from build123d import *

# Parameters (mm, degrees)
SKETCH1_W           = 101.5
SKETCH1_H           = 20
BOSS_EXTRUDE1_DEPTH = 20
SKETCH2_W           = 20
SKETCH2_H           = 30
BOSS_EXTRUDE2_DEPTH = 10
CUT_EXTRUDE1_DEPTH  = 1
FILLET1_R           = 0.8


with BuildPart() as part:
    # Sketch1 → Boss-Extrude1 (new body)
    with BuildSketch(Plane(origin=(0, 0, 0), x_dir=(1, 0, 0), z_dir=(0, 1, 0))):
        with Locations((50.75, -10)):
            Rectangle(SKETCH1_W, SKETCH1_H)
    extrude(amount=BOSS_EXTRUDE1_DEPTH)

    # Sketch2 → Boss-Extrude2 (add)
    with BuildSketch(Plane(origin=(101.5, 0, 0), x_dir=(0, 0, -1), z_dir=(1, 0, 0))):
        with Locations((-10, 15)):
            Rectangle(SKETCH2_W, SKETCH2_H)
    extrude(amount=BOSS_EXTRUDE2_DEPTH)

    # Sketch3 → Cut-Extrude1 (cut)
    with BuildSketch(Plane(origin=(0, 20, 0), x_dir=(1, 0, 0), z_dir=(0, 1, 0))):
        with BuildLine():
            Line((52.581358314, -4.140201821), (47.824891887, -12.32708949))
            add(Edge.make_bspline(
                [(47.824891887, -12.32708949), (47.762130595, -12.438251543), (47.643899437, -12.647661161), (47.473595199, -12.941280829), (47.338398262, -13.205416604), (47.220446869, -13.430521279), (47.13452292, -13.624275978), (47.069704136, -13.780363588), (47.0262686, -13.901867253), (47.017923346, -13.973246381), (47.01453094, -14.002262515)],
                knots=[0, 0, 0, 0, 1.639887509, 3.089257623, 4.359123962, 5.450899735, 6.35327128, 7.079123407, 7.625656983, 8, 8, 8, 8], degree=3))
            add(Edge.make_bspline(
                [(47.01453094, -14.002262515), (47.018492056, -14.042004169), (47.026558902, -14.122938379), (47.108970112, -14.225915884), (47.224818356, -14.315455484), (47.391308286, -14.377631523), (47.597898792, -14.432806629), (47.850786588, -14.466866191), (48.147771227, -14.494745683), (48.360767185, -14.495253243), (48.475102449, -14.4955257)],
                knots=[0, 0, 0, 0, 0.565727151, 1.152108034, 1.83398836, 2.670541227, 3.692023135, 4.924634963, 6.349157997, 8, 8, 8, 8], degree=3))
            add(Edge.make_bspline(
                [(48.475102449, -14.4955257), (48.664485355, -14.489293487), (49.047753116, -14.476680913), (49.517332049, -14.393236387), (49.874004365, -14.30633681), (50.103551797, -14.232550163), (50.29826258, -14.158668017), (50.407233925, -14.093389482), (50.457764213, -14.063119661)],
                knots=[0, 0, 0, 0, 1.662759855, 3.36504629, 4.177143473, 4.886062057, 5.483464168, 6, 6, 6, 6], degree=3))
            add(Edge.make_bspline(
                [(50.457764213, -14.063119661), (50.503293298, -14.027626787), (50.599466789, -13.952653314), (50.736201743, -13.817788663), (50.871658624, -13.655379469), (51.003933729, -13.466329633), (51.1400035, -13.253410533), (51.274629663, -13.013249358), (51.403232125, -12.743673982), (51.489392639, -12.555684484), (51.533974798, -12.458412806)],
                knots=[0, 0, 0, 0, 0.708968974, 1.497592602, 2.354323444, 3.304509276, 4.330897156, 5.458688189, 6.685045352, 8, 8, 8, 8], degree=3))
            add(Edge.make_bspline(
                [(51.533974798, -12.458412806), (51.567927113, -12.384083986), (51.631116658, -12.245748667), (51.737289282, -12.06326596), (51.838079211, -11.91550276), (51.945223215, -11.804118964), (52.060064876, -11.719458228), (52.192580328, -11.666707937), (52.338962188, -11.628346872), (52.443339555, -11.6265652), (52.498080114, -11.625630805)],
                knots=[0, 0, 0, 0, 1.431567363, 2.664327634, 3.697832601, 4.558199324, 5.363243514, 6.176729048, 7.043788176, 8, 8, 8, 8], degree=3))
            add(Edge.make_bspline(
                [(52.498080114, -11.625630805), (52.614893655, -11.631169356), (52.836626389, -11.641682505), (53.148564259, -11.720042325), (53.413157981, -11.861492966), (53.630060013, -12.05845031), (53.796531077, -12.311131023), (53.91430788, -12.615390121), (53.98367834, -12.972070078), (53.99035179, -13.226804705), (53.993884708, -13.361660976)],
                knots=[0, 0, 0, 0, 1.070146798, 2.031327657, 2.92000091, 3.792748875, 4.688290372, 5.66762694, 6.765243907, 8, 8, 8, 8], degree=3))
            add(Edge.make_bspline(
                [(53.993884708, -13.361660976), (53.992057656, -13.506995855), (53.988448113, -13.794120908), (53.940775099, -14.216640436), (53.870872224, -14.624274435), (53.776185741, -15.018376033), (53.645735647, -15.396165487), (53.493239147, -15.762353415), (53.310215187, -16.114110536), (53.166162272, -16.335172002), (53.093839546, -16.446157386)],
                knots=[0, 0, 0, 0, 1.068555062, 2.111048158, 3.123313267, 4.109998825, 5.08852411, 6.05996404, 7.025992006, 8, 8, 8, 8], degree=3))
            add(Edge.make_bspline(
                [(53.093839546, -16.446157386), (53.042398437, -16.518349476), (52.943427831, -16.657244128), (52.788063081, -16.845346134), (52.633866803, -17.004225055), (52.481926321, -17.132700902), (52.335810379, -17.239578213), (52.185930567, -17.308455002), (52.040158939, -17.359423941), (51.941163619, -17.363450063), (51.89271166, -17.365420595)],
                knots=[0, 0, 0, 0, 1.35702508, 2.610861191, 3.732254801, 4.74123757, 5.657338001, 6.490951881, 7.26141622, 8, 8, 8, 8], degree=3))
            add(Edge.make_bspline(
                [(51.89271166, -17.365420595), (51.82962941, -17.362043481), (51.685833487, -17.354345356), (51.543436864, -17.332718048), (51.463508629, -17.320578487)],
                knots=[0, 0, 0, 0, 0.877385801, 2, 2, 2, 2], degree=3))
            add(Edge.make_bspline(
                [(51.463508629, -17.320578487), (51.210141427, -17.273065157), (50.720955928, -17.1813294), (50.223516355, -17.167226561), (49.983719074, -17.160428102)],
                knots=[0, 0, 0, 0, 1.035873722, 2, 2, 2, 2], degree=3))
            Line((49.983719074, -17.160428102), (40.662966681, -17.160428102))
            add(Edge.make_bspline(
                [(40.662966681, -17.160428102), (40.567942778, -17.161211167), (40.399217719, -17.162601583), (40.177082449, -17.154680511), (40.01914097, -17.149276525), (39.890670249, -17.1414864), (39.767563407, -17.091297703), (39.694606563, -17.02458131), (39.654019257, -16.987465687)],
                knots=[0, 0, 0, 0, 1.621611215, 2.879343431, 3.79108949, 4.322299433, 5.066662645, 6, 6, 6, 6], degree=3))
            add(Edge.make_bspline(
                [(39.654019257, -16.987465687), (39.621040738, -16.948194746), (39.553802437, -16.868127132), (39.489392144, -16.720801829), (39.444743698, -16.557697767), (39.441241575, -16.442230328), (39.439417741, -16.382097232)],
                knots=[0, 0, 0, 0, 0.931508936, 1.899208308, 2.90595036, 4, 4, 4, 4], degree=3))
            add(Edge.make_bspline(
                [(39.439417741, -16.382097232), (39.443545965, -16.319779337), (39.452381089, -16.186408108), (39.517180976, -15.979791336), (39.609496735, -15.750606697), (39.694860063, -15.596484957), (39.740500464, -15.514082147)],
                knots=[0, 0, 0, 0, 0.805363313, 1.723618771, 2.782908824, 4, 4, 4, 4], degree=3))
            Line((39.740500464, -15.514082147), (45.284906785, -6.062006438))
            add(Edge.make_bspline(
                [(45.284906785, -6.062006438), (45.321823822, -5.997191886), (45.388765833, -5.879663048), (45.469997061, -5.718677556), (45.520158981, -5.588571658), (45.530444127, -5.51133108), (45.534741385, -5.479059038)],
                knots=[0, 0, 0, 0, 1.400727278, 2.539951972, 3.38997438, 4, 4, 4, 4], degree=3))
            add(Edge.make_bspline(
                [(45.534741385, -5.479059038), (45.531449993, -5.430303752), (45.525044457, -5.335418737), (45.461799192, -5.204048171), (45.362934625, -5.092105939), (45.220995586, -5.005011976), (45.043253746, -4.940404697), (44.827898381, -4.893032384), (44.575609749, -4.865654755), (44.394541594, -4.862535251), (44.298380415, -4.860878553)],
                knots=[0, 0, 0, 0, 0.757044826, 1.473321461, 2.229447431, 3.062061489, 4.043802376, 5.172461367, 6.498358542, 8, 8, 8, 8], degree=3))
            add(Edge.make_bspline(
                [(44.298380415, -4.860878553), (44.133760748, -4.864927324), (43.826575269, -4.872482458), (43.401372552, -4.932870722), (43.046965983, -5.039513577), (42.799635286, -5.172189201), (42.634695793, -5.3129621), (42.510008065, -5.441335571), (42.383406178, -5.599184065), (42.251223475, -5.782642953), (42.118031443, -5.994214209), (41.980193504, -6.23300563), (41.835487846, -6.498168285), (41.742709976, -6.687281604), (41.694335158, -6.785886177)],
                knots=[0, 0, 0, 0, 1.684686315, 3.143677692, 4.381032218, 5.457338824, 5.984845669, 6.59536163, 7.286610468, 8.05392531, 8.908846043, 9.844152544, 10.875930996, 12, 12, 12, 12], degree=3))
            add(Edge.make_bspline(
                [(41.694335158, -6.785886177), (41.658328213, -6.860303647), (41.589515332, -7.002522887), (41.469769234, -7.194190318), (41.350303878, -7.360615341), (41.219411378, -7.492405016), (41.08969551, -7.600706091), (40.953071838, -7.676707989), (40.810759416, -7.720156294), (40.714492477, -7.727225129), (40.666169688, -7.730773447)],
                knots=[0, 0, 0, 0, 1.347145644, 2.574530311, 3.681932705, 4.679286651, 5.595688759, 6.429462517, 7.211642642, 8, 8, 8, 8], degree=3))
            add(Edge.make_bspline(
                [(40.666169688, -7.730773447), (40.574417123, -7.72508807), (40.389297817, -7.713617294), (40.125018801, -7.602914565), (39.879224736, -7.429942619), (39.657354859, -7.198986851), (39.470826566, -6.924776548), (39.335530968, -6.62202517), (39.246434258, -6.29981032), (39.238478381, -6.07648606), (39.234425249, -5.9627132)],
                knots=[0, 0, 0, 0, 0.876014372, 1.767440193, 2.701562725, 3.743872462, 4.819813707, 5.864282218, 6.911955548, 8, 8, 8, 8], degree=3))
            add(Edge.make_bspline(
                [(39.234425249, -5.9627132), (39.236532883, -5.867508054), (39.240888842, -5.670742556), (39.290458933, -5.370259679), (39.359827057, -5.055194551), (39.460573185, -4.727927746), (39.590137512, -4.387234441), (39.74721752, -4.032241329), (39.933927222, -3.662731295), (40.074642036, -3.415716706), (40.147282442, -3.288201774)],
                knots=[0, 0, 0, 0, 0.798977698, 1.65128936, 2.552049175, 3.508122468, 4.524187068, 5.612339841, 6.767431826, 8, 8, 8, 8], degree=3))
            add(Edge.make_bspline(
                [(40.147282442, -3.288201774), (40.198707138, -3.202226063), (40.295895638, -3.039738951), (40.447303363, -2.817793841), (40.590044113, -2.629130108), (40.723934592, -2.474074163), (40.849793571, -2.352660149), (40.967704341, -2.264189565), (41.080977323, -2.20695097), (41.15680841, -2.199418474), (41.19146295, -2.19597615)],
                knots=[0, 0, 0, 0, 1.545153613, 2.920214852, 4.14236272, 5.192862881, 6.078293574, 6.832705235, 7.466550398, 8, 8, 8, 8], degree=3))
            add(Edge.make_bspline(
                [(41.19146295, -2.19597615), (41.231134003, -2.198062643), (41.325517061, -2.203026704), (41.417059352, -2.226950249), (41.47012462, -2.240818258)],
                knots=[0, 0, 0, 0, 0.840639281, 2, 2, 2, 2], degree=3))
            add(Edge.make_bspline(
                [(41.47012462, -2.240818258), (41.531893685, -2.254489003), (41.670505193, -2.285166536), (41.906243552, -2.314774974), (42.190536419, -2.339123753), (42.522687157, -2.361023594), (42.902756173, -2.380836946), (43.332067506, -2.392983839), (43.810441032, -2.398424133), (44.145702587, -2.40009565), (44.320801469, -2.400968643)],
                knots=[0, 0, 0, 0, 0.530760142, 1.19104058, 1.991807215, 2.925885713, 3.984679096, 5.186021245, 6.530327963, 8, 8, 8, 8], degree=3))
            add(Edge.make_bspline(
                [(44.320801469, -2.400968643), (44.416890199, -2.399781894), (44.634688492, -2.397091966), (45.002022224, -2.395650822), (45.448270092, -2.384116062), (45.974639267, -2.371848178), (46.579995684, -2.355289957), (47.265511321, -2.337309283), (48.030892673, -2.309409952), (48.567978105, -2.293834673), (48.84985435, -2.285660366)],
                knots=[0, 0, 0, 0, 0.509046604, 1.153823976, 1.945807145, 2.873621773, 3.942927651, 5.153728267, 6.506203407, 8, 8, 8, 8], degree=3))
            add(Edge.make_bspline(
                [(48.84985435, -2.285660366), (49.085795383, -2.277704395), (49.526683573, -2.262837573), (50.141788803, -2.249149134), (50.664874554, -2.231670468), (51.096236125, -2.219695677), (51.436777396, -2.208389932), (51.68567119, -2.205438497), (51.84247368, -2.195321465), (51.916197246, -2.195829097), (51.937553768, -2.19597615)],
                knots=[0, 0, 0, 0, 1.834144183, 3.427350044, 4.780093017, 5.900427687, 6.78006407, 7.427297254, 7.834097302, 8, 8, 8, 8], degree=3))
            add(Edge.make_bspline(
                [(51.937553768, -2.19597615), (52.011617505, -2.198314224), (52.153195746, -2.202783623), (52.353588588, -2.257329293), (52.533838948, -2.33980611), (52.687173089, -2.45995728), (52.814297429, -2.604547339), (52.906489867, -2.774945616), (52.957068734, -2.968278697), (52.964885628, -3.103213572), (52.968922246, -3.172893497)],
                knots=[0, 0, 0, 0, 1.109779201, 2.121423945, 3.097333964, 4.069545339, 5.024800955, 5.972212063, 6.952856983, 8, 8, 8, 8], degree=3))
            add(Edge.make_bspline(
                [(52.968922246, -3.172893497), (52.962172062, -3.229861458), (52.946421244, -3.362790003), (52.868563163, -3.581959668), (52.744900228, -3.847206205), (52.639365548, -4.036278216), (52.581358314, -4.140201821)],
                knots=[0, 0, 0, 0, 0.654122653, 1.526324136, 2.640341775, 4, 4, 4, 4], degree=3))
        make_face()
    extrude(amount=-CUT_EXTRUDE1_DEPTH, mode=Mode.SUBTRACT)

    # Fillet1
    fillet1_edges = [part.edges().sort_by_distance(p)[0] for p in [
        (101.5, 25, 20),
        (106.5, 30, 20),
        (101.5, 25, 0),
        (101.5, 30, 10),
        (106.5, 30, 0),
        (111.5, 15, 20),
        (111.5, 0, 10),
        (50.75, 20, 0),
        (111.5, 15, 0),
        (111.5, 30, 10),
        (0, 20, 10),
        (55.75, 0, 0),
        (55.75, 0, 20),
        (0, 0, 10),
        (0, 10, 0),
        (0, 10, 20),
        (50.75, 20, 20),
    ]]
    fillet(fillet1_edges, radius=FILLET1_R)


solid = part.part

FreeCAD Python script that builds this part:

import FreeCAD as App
import Part
import Sketcher

V = App.Vector
Q = App.Units.Quantity


def edges_at(feature, points):
    """Names of the edges that pass closest to the given points."""
    edges = feature.Shape.Edges
    near = lambda p: min(range(len(edges)), key=lambda i: edges[i].distToShape(Part.Vertex(*p))[0])
    return sorted({f"Edge{near(p) + 1}" for p in points})

doc = App.newDocument("Part")
body = doc.addObject("PartDesign::Body", "Body")

# Sketch on XZ plane
sketch1 = body.newObject("Sketcher::SketchObject", "Sketch")
sketch1.AttachmentSupport = (doc.getObject("XZ_Plane"), [""])
sketch1.MapMode = "FlatFace"
sketch1.addGeometry([
    Part.LineSegment(V(0, 0, 0), V(0, 20, 0)),
    Part.LineSegment(V(0, 20, 0), V(101.5, 20, 0)),
    Part.LineSegment(V(101.5, 20, 0), V(101.5, 0, 0)),
    Part.LineSegment(V(101.5, 0, 0), V(0, 0, 0)),
], False)
sketch1.addConstraint([
    Sketcher.Constraint("Coincident", 0, 2, 1, 1),
    Sketcher.Constraint("Coincident", 1, 2, 2, 1),
    Sketcher.Constraint("Coincident", 2, 2, 3, 1),
    Sketcher.Constraint("Coincident", 3, 2, 0, 1),
    Sketcher.Constraint("Vertical", 0),
    Sketcher.Constraint("Horizontal", 1),
    Sketcher.Constraint("Vertical", 2),
    Sketcher.Constraint("Horizontal", 3),
    Sketcher.Constraint("Coincident", 3, 2, -1, 1),
    Sketcher.Constraint("DistanceY", 0, 1, 0, 2, Q("20 mm")),
    Sketcher.Constraint("DistanceX", 1, 1, 1, 2, Q("101.5 mm")),
])
pad1 = body.newObject("PartDesign::Pad", "Pad")
pad1.Profile = sketch1
pad1.Length = 20
pad1.Reversed = True

# Sketch on YZ plane
sketch2 = body.newObject("Sketcher::SketchObject", "Sketch001")
sketch2.AttachmentSupport = (doc.getObject("YZ_Plane"), [""])
sketch2.MapMode = "FlatFace"
sketch2.AttachmentOffset = App.Placement(V(0, 0, 101.5), App.Rotation())
sketch2.addGeometry([
    Part.LineSegment(V(30, 20, 0), V(0, 20, 0)),
    Part.LineSegment(V(0, 20, 0), V(0, 0, 0)),
    Part.LineSegment(V(0, 0, 0), V(30, 0, 0)),
    Part.LineSegment(V(30, 0, 0), V(30, 20, 0)),
], False)
sketch2.addConstraint([
    Sketcher.Constraint("Coincident", 0, 2, 1, 1),
    Sketcher.Constraint("Coincident", 1, 2, 2, 1),
    Sketcher.Constraint("Coincident", 2, 2, 3, 1),
    Sketcher.Constraint("Coincident", 3, 2, 0, 1),
    Sketcher.Constraint("Horizontal", 0),
    Sketcher.Constraint("Vertical", 1),
    Sketcher.Constraint("Horizontal", 2),
    Sketcher.Constraint("Vertical", 3),
    Sketcher.Constraint("Coincident", 1, 2, -1, 1),
    Sketcher.Constraint("DistanceX", 0, 2, 0, 1, Q("30 mm")),
    Sketcher.Constraint("DistanceY", 1, 2, 1, 1, Q("20 mm")),
])
pad2 = body.newObject("PartDesign::Pad", "Pad001")
pad2.Profile = sketch2
pad2.Length = 10

# Sketch on XZ plane
sketch3 = body.newObject("Sketcher::SketchObject", "Sketch002")
sketch3.AttachmentSupport = (doc.getObject("XZ_Plane"), [""])
sketch3.MapMode = "FlatFace"
sketch3.AttachmentOffset = App.Placement(V(0, 0, -20), App.Rotation())
sketch3.addGeometry([
    Part.LineSegment(V(47.824892, 12.327089, 0), V(52.581358, 4.140202, 0)),  # 0
    Part.BSplineCurve([V(52.968922, 3.172893, 0), V(52.962172, 3.229861, 0), V(52.946421, 3.36279, 0), V(52.868563, 3.58196, 0), V(52.7449, 3.847206, 0), V(52.639366, 4.036278, 0), V(52.581358, 4.140202, 0)], [4, 1, 1, 1, 4], [0, 0.654122653, 1.526324136, 2.640341775, 4], False, 3, [1, 1, 1, 1, 1, 1, 1], False),  # 1
    Part.BSplineCurve([V(51.937554, 2.195976, 0), V(52.011618, 2.198314, 0), V(52.153196, 2.202784, 0), V(52.353589, 2.257329, 0), V(52.533839, 2.339806, 0), V(52.687173, 2.459957, 0), V(52.814297, 2.604547, 0), V(52.90649, 2.774946, 0), V(52.957069, 2.968279, 0), V(52.964886, 3.103214, 0), V(52.968922, 3.172893, 0)], [4, 1, 1, 1, 1, 1, 1, 1, 4], [0, 1.109779201, 2.121423945, 3.097333964, 4.069545339, 5.024800955, 5.972212063, 6.952856983, 8], False, 3, [1, 1, 1, 1, 1, 1, 1, 1, 1, 1, 1], False),  # 2
    Part.BSplineCurve([V(48.849854, 2.28566, 0), V(49.085795, 2.277704, 0), V(49.526684, 2.262838, 0), V(50.141789, 2.249149, 0), V(50.664875, 2.23167, 0), V(51.096236, 2.219696, 0), V(51.436777, 2.20839, 0), V(51.685671, 2.205438, 0), V(51.842474, 2.195321, 0), V(51.916197, 2.195829, 0), V(51.937554, 2.195976, 0)], [4, 1, 1, 1, 1, 1, 1, 1, 4], [0, 1.834144183, 3.427350044, 4.780093017, 5.900427687, 6.78006407, 7.427297254, 7.834097302, 8], False, 3, [1, 1, 1, 1, 1, 1, 1, 1, 1, 1, 1], False),  # 3
    Part.BSplineCurve([V(44.320801, 2.400969, 0), V(44.41689, 2.399782, 0), V(44.634688, 2.397092, 0), V(45.002022, 2.395651, 0), V(45.44827, 2.384116, 0), V(45.974639, 2.371848, 0), V(46.579996, 2.35529, 0), V(47.265511, 2.337309, 0), V(48.030893, 2.30941, 0), V(48.567978, 2.293835, 0), V(48.849854, 2.28566, 0)], [4, 1, 1, 1, 1, 1, 1, 1, 4], [0, 0.509046604, 1.153823976, 1.945807145, 2.873621773, 3.942927651, 5.153728267, 6.506203407, 8], False, 3, [1, 1, 1, 1, 1, 1, 1, 1, 1, 1, 1], False),  # 4
    Part.BSplineCurve([V(41.470125, 2.240818, 0), V(41.531894, 2.254489, 0), V(41.670505, 2.285167, 0), V(41.906244, 2.314775, 0), V(42.190536, 2.339124, 0), V(42.522687, 2.361024, 0), V(42.902756, 2.380837, 0), V(43.332068, 2.392984, 0), V(43.810441, 2.398424, 0), V(44.145703, 2.400096, 0), V(44.320801, 2.400969, 0)], [4, 1, 1, 1, 1, 1, 1, 1, 4], [0, 0.530760142, 1.19104058, 1.991807215, 2.925885713, 3.984679096, 5.186021245, 6.530327963, 8], False, 3, [1, 1, 1, 1, 1, 1, 1, 1, 1, 1, 1], False),  # 5
    Part.BSplineCurve([V(41.191463, 2.195976, 0), V(41.231134, 2.198063, 0), V(41.325517, 2.203027, 0), V(41.417059, 2.22695, 0), V(41.470125, 2.240818, 0)], [4, 1, 4], [0, 0.840639281, 2], False, 3, [1, 1, 1, 1, 1], False),  # 6
    Part.BSplineCurve([V(40.147282, 3.288202, 0), V(40.198707, 3.202226, 0), V(40.295896, 3.039739, 0), V(40.447303, 2.817794, 0), V(40.590044, 2.62913, 0), V(40.723935, 2.474074, 0), V(40.849794, 2.35266, 0), V(40.967704, 2.26419, 0), V(41.080977, 2.206951, 0), V(41.156808, 2.199418, 0), V(41.191463, 2.195976, 0)], [4, 1, 1, 1, 1, 1, 1, 1, 4], [0, 1.545153613, 2.920214852, 4.14236272, 5.192862881, 6.078293574, 6.832705235, 7.466550398, 8], False, 3, [1, 1, 1, 1, 1, 1, 1, 1, 1, 1, 1], False),  # 7
    Part.BSplineCurve([V(39.234425, 5.962713, 0), V(39.236533, 5.867508, 0), V(39.240889, 5.670743, 0), V(39.290459, 5.37026, 0), V(39.359827, 5.055195, 0), V(39.460573, 4.727928, 0), V(39.590138, 4.387234, 0), V(39.747218, 4.032241, 0), V(39.933927, 3.662731, 0), V(40.074642, 3.415717, 0), V(40.147282, 3.288202, 0)], [4, 1, 1, 1, 1, 1, 1, 1, 4], [0, 0.798977698, 1.65128936, 2.552049175, 3.508122468, 4.524187068, 5.612339841, 6.767431826, 8], False, 3, [1, 1, 1, 1, 1, 1, 1, 1, 1, 1, 1], False),  # 8
    Part.BSplineCurve([V(40.66617, 7.730773, 0), V(40.574417, 7.725088, 0), V(40.389298, 7.713617, 0), V(40.125019, 7.602915, 0), V(39.879225, 7.429943, 0), V(39.657355, 7.198987, 0), V(39.470827, 6.924777, 0), V(39.335531, 6.622025, 0), V(39.246434, 6.29981, 0), V(39.238478, 6.076486, 0), V(39.234425, 5.962713, 0)], [4, 1, 1, 1, 1, 1, 1, 1, 4], [0, 0.876014372, 1.767440193, 2.701562725, 3.743872462, 4.819813707, 5.864282218, 6.911955548, 8], False, 3, [1, 1, 1, 1, 1, 1, 1, 1, 1, 1, 1], False),  # 9
    Part.BSplineCurve([V(41.694335, 6.785886, 0), V(41.658328, 6.860304, 0), V(41.589515, 7.002523, 0), V(41.469769, 7.19419, 0), V(41.350304, 7.360615, 0), V(41.219411, 7.492405, 0), V(41.089696, 7.600706, 0), V(40.953072, 7.676708, 0), V(40.810759, 7.720156, 0), V(40.714492, 7.727225, 0), V(40.66617, 7.730773, 0)], [4, 1, 1, 1, 1, 1, 1, 1, 4], [0, 1.347145644, 2.574530311, 3.681932705, 4.679286651, 5.595688759, 6.429462517, 7.211642642, 8], False, 3, [1, 1, 1, 1, 1, 1, 1, 1, 1, 1, 1], False),  # 10
    Part.BSplineCurve([V(44.29838, 4.860879, 0), V(44.133761, 4.864927, 0), V(43.826575, 4.872482, 0), V(43.401373, 4.932871, 0), V(43.046966, 5.039514, 0), V(42.799635, 5.172189, 0), V(42.634696, 5.312962, 0), V(42.510008, 5.441336, 0), V(42.383406, 5.599184, 0), V(42.251223, 5.782643, 0), V(42.118031, 5.994214, 0), V(41.980194, 6.233006, 0), V(41.835488, 6.498168, 0), V(41.74271, 6.687282, 0), V(41.694335, 6.785886, 0)], [4, 1, 1, 1, 1, 1, 1, 1, 1, 1, 1, 1, 4], [0, 1.684686315, 3.143677692, 4.381032218, 5.457338824, 5.984845669, 6.59536163, 7.286610468, 8.05392531, 8.908846043, 9.844152544, 10.875930996, 12], False, 3, [1, 1, 1, 1, 1, 1, 1, 1, 1, 1, 1, 1, 1, 1, 1], False),  # 11
    Part.BSplineCurve([V(45.534741, 5.479059, 0), V(45.53145, 5.430304, 0), V(45.525044, 5.335419, 0), V(45.461799, 5.204048, 0), V(45.362935, 5.092106, 0), V(45.220996, 5.005012, 0), V(45.043254, 4.940405, 0), V(44.827898, 4.893032, 0), V(44.57561, 4.865655, 0), V(44.394542, 4.862535, 0), V(44.29838, 4.860879, 0)], [4, 1, 1, 1, 1, 1, 1, 1, 4], [0, 0.757044826, 1.473321461, 2.229447431, 3.062061489, 4.043802376, 5.172461367, 6.498358542, 8], False, 3, [1, 1, 1, 1, 1, 1, 1, 1, 1, 1, 1], False),  # 12
    Part.BSplineCurve([V(45.284907, 6.062006, 0), V(45.321824, 5.997192, 0), V(45.388766, 5.879663, 0), V(45.469997, 5.718678, 0), V(45.520159, 5.588572, 0), V(45.530444, 5.511331, 0), V(45.534741, 5.479059, 0)], [4, 1, 1, 1, 4], [0, 1.400727278, 2.539951972, 3.38997438, 4], False, 3, [1, 1, 1, 1, 1, 1, 1], False),  # 13
    Part.LineSegment(V(45.284907, 6.062006, 0), V(39.7405, 15.514082, 0)),  # 14
    Part.BSplineCurve([V(39.439418, 16.382097, 0), V(39.443546, 16.319779, 0), V(39.452381, 16.186408, 0), V(39.517181, 15.979791, 0), V(39.609497, 15.750607, 0), V(39.69486, 15.596485, 0), V(39.7405, 15.514082, 0)], [4, 1, 1, 1, 4], [0, 0.805363313, 1.723618771, 2.782908824, 4], False, 3, [1, 1, 1, 1, 1, 1, 1], False),  # 15
    Part.BSplineCurve([V(39.654019, 16.987466, 0), V(39.621041, 16.948195, 0), V(39.553802, 16.868127, 0), V(39.489392, 16.720802, 0), V(39.444744, 16.557698, 0), V(39.441242, 16.44223, 0), V(39.439418, 16.382097, 0)], [4, 1, 1, 1, 4], [0, 0.931508936, 1.899208308, 2.90595036, 4], False, 3, [1, 1, 1, 1, 1, 1, 1], False),  # 16
    Part.BSplineCurve([V(40.662967, 17.160428, 0), V(40.567943, 17.161211, 0), V(40.399218, 17.162602, 0), V(40.177082, 17.154681, 0), V(40.019141, 17.149277, 0), V(39.89067, 17.141486, 0), V(39.767563, 17.091298, 0), V(39.694607, 17.024581, 0), V(39.654019, 16.987466, 0)], [4, 1, 1, 1, 1, 1, 4], [0, 1.621611215, 2.879343431, 3.79108949, 4.322299433, 5.066662645, 6], False, 3, [1, 1, 1, 1, 1, 1, 1, 1, 1], False),  # 17
    Part.LineSegment(V(40.662967, 17.160428, 0), V(49.983719, 17.160428, 0)),  # 18
    Part.BSplineCurve([V(51.463509, 17.320578, 0), V(51.210141, 17.273065, 0), V(50.720956, 17.181329, 0), V(50.223516, 17.167227, 0), V(49.983719, 17.160428, 0)], [4, 1, 4], [0, 1.035873722, 2], False, 3, [1, 1, 1, 1, 1], False),  # 19
    Part.BSplineCurve([V(51.892712, 17.365421, 0), V(51.829629, 17.362043, 0), V(51.685833, 17.354345, 0), V(51.543437, 17.332718, 0), V(51.463509, 17.320578, 0)], [4, 1, 4], [0, 0.877385801, 2], False, 3, [1, 1, 1, 1, 1], False),  # 20
    Part.BSplineCurve([V(53.09384, 16.446157, 0), V(53.042398, 16.518349, 0), V(52.943428, 16.657244, 0), V(52.788063, 16.845346, 0), V(52.633867, 17.004225, 0), V(52.481926, 17.132701, 0), V(52.33581, 17.239578, 0), V(52.185931, 17.308455, 0), V(52.040159, 17.359424, 0), V(51.941164, 17.36345, 0), V(51.892712, 17.365421, 0)], [4, 1, 1, 1, 1, 1, 1, 1, 4], [0, 1.35702508, 2.610861191, 3.732254801, 4.74123757, 5.657338001, 6.490951881, 7.26141622, 8], False, 3, [1, 1, 1, 1, 1, 1, 1, 1, 1, 1, 1], False),  # 21
    Part.BSplineCurve([V(53.993885, 13.361661, 0), V(53.992058, 13.506996, 0), V(53.988448, 13.794121, 0), V(53.940775, 14.21664, 0), V(53.870872, 14.624274, 0), V(53.776186, 15.018376, 0), V(53.645736, 15.396165, 0), V(53.493239, 15.762353, 0), V(53.310215, 16.114111, 0), V(53.166162, 16.335172, 0), V(53.09384, 16.446157, 0)], [4, 1, 1, 1, 1, 1, 1, 1, 4], [0, 1.068555062, 2.111048158, 3.123313267, 4.109998825, 5.08852411, 6.05996404, 7.025992006, 8], False, 3, [1, 1, 1, 1, 1, 1, 1, 1, 1, 1, 1], False),  # 22
    Part.BSplineCurve([V(52.49808, 11.625631, 0), V(52.614894, 11.631169, 0), V(52.836626, 11.641683, 0), V(53.148564, 11.720042, 0), V(53.413158, 11.861493, 0), V(53.63006, 12.05845, 0), V(53.796531, 12.311131, 0), V(53.914308, 12.61539, 0), V(53.983678, 12.97207, 0), V(53.990352, 13.226805, 0), V(53.993885, 13.361661, 0)], [4, 1, 1, 1, 1, 1, 1, 1, 4], [0, 1.070146798, 2.031327657, 2.92000091, 3.792748875, 4.688290372, 5.66762694, 6.765243907, 8], False, 3, [1, 1, 1, 1, 1, 1, 1, 1, 1, 1, 1], False),  # 23
    Part.BSplineCurve([V(51.533975, 12.458413, 0), V(51.567927, 12.384084, 0), V(51.631117, 12.245749, 0), V(51.737289, 12.063266, 0), V(51.838079, 11.915503, 0), V(51.945223, 11.804119, 0), V(52.060065, 11.719458, 0), V(52.19258, 11.666708, 0), V(52.338962, 11.628347, 0), V(52.44334, 11.626565, 0), V(52.49808, 11.625631, 0)], [4, 1, 1, 1, 1, 1, 1, 1, 4], [0, 1.431567363, 2.664327634, 3.697832601, 4.558199324, 5.363243514, 6.176729048, 7.043788176, 8], False, 3, [1, 1, 1, 1, 1, 1, 1, 1, 1, 1, 1], False),  # 24
    Part.BSplineCurve([V(50.457764, 14.06312, 0), V(50.503293, 14.027627, 0), V(50.599467, 13.952653, 0), V(50.736202, 13.817789, 0), V(50.871659, 13.655379, 0), V(51.003934, 13.46633, 0), V(51.140003, 13.253411, 0), V(51.27463, 13.013249, 0), V(51.403232, 12.743674, 0), V(51.489393, 12.555684, 0), V(51.533975, 12.458413, 0)], [4, 1, 1, 1, 1, 1, 1, 1, 4], [0, 0.708968974, 1.497592602, 2.354323444, 3.304509276, 4.330897156, 5.458688189, 6.685045352, 8], False, 3, [1, 1, 1, 1, 1, 1, 1, 1, 1, 1, 1], False),  # 25
    Part.BSplineCurve([V(48.475102, 14.495526, 0), V(48.664485, 14.489293, 0), V(49.047753, 14.476681, 0), V(49.517332, 14.393236, 0), V(49.874004, 14.306337, 0), V(50.103552, 14.23255, 0), V(50.298263, 14.158668, 0), V(50.407234, 14.093389, 0), V(50.457764, 14.06312, 0)], [4, 1, 1, 1, 1, 1, 4], [0, 1.662759855, 3.36504629, 4.177143473, 4.886062057, 5.483464168, 6], False, 3, [1, 1, 1, 1, 1, 1, 1, 1, 1], False),  # 26
    Part.BSplineCurve([V(47.014531, 14.002263, 0), V(47.018492, 14.042004, 0), V(47.026559, 14.122938, 0), V(47.10897, 14.225916, 0), V(47.224818, 14.315455, 0), V(47.391308, 14.377632, 0), V(47.597899, 14.432807, 0), V(47.850787, 14.466866, 0), V(48.147771, 14.494746, 0), V(48.360767, 14.495253, 0), V(48.475102, 14.495526, 0)], [4, 1, 1, 1, 1, 1, 1, 1, 4], [0, 0.565727151, 1.152108034, 1.83398836, 2.670541227, 3.692023135, 4.924634963, 6.349157997, 8], False, 3, [1, 1, 1, 1, 1, 1, 1, 1, 1, 1, 1], False),  # 27
    Part.BSplineCurve([V(47.824892, 12.327089, 0), V(47.762131, 12.438252, 0), V(47.643899, 12.647661, 0), V(47.473595, 12.941281, 0), V(47.338398, 13.205417, 0), V(47.220447, 13.430521, 0), V(47.134523, 13.624276, 0), V(47.069704, 13.780364, 0), V(47.026269, 13.901867, 0), V(47.017923, 13.973246, 0), V(47.014531, 14.002263, 0)], [4, 1, 1, 1, 1, 1, 1, 1, 4], [0, 1.639887509, 3.089257623, 4.359123962, 5.450899735, 6.35327128, 7.079123407, 7.625656983, 8], False, 3, [1, 1, 1, 1, 1, 1, 1, 1, 1, 1, 1], False),  # 28
], False)
sketch3.addConstraint([
    Sketcher.Constraint("Block", 1),
    Sketcher.Constraint("Block", 2),
    Sketcher.Constraint("Block", 3),
    Sketcher.Constraint("Block", 4),
    Sketcher.Constraint("Block", 5),
    Sketcher.Constraint("Block", 6),
    Sketcher.Constraint("Block", 7),
    Sketcher.Constraint("Block", 8),
    Sketcher.Constraint("Block", 9),
    Sketcher.Constraint("Block", 10),
    Sketcher.Constraint("Block", 11),
    Sketcher.Constraint("Block", 12),
    Sketcher.Constraint("Block", 13),
    Sketcher.Constraint("Block", 15),
    Sketcher.Constraint("Block", 16),
    Sketcher.Constraint("Block", 17),
    Sketcher.Constraint("Block", 19),
    Sketcher.Constraint("Block", 20),
    Sketcher.Constraint("Block", 21),
    Sketcher.Constraint("Block", 22),
    Sketcher.Constraint("Block", 23),
    Sketcher.Constraint("Block", 24),
    Sketcher.Constraint("Block", 25),
    Sketcher.Constraint("Block", 26),
    Sketcher.Constraint("Block", 27),
    Sketcher.Constraint("Block", 28),
    Sketcher.Constraint("Coincident", 0, 2, 1, 2),
    Sketcher.Constraint("Coincident", 13, 1, 14, 1),
    Sketcher.Constraint("Coincident", 14, 2, 15, 2),
    Sketcher.Constraint("Coincident", 17, 1, 18, 1),
    Sketcher.Constraint("Coincident", 18, 2, 19, 2),
    Sketcher.Constraint("Coincident", 28, 1, 0, 1),
])
pocket1 = body.newObject("PartDesign::Pocket", "Pocket")
pocket1.Profile = sketch3
pocket1.Length = 1
pocket1.Reversed = True
doc.recompute()

fillet = body.newObject("PartDesign::Fillet", "Fillet")
fillet.Base = (pocket1, edges_at(pocket1, [
    (101.5, 25, 20),
    (106.5, 30, 20),
    (101.5, 25, 0),
    (101.5, 30, 10),
    (106.5, 30, 0),
    (111.5, 15, 20),
    (111.5, 0, 10),
    (50.75, 20, 0),
    (111.5, 15, 0),
    (111.5, 30, 10),
    (0, 20, 10),
    (55.75, 0, 0),
    (55.75, 0, 20),
    (0, 0, 10),
    (0, 10, 0),
    (0, 10, 20),
    (50.75, 20, 20),
]))
fillet.Radius = 0.8

doc.recompute()
